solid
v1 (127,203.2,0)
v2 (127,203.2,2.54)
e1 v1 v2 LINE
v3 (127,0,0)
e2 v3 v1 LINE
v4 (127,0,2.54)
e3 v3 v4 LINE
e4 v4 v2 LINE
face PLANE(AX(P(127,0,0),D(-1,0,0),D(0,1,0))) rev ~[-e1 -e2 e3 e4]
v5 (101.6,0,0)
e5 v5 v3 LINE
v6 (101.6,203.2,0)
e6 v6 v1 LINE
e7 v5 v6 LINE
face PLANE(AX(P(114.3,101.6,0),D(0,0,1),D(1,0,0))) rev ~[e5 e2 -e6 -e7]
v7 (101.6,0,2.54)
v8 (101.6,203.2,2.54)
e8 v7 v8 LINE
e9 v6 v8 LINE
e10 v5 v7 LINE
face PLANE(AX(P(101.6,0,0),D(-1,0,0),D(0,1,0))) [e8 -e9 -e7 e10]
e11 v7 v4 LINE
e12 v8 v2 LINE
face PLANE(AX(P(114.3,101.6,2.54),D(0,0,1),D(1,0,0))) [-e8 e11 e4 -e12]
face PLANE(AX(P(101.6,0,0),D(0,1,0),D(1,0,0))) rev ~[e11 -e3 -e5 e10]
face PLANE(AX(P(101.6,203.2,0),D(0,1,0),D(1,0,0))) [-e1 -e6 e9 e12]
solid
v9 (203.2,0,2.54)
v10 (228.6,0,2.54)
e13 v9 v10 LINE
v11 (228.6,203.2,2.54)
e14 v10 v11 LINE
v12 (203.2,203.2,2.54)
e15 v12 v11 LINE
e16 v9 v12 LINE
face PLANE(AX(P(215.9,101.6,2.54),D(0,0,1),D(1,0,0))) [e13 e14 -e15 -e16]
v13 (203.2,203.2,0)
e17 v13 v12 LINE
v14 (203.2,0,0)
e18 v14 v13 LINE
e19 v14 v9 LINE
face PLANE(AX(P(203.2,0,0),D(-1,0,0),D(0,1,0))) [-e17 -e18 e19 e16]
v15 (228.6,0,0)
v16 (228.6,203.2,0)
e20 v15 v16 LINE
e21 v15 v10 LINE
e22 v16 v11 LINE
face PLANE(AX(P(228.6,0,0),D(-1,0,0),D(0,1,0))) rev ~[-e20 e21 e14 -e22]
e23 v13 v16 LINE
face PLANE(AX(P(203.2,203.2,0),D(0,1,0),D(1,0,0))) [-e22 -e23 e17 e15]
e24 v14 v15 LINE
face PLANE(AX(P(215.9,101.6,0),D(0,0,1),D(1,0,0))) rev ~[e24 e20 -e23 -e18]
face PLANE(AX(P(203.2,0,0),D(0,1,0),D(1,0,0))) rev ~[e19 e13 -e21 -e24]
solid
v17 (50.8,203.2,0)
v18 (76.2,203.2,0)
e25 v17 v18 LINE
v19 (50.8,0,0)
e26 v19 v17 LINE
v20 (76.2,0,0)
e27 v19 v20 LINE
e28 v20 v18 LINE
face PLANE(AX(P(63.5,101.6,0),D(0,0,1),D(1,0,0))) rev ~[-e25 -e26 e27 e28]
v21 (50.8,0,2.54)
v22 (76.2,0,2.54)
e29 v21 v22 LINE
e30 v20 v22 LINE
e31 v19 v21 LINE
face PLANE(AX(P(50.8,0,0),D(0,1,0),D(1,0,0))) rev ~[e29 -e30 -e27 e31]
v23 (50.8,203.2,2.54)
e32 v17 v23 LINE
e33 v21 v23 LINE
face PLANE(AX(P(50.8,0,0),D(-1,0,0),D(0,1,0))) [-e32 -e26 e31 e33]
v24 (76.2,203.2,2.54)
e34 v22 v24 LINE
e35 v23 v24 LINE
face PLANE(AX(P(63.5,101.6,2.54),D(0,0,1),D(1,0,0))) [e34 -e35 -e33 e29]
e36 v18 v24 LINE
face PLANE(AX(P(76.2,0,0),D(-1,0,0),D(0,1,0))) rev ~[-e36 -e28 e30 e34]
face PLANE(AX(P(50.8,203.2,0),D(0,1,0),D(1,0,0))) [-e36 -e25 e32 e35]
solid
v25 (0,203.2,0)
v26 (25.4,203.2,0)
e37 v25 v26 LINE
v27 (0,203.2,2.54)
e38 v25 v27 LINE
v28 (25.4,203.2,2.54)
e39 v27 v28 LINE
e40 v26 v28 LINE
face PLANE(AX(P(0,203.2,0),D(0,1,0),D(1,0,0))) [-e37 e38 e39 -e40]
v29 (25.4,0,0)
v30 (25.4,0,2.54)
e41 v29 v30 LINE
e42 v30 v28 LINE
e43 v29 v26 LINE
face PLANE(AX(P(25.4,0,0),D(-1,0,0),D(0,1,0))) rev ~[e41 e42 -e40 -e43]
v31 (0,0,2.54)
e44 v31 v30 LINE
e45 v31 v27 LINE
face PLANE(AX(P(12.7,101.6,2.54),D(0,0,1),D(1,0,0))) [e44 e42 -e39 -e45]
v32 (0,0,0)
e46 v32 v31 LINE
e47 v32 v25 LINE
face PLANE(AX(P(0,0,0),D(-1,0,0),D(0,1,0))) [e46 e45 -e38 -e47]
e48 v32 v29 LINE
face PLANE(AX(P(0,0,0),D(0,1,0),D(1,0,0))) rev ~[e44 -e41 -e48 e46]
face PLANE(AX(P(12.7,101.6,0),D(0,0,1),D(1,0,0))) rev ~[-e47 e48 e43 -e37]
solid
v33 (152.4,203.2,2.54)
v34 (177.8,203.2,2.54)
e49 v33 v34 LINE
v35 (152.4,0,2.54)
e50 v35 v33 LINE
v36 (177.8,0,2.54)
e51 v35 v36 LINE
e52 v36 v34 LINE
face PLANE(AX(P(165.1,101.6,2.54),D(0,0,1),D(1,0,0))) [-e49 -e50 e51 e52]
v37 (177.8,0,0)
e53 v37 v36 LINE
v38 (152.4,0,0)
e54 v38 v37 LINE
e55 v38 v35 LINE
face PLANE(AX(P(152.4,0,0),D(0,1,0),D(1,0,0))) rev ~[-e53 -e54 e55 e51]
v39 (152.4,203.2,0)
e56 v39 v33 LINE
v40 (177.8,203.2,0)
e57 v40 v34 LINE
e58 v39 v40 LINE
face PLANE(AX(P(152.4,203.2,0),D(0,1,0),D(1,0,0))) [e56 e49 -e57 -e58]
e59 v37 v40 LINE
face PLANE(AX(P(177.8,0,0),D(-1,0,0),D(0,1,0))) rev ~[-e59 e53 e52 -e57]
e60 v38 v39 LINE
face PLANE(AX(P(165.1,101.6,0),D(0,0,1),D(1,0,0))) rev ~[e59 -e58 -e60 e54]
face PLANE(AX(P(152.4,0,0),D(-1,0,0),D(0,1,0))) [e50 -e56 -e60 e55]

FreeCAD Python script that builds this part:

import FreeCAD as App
import Part
import Sketcher

V = App.Vector
Q = App.Units.Quantity


def add_polygon(sketch, points):
    """Adds a closed chain of lines whose ends are joined by coincident constraints."""
    first, n = sketch.GeometryCount, len(points)
    for a, b in zip(points, points[1:] + points[:1]):
        sketch.addGeometry(Part.LineSegment(App.Vector(*a, 0), App.Vector(*b, 0)), False)
    for i in range(n):
        sketch.addConstraint(Sketcher.Constraint("Coincident", first + i, 2, first + (i + 1) % n, 1))

doc = App.newDocument("Part")
params = doc.addObject("Spreadsheet::Sheet", "Params")
for row, (alias, value) in enumerate([
    ("sketch1_width", "1 in"),
    ("sketch1_height", "8 in"),
    ("pad1_length", "0.1 in"),
], start=1):
    params.set(f"A{row}", alias)
    params.set(f"B{row}", "=" + value)
    params.setAlias(f"B{row}", alias)

body = doc.addObject("PartDesign::Body", "Body")
body.AllowCompound = True

# Sketch on XY plane
sketch1 = body.newObject("Sketcher::SketchObject", "Sketch")
sketch1.AttachmentSupport = (doc.getObject("XY_Plane"), [""])
sketch1.MapMode = "FlatFace"
add_polygon(sketch1, [(0, 203), (0, 0), (25, 0), (25, 203)])  # lines 0-3
add_polygon(sketch1, [(51, 203), (51, 0), (76, 0), (76, 203)])  # lines 4-7
add_polygon(sketch1, [(102, 203), (102, 0), (127, 0), (127, 203)])  # lines 8-11
add_polygon(sketch1, [(152, 203), (152, 0), (178, 0), (178, 203)])  # lines 12-15
add_polygon(sketch1, [(203, 203), (203, 0), (229, 0), (229, 203)])  # lines 16-19
sketch1.addConstraint(Sketcher.Constraint("Vertical", 0))
sketch1.addConstraint(Sketcher.Constraint("Horizontal", 1))
sketch1.addConstraint(Sketcher.Constraint("Vertical", 2))
sketch1.addConstraint(Sketcher.Constraint("Horizontal", 3))
sketch1.addConstraint(Sketcher.Constraint("Vertical", 4))
sketch1.addConstraint(Sketcher.Constraint("Horizontal", 5))
sketch1.addConstraint(Sketcher.Constraint("Vertical", 6))
sketch1.addConstraint(Sketcher.Constraint("Horizontal", 7))
sketch1.addConstraint(Sketcher.Constraint("Vertical", 8))
sketch1.addConstraint(Sketcher.Constraint("Horizontal", 9))
sketch1.addConstraint(Sketcher.Constraint("Vertical", 10))
sketch1.addConstraint(Sketcher.Constraint("Horizontal", 11))
sketch1.addConstraint(Sketcher.Constraint("Vertical", 12))
sketch1.addConstraint(Sketcher.Constraint("Horizontal", 13))
sketch1.addConstraint(Sketcher.Constraint("Vertical", 14))
sketch1.addConstraint(Sketcher.Constraint("Horizontal", 15))
sketch1.addConstraint(Sketcher.Constraint("Vertical", 16))
sketch1.addConstraint(Sketcher.Constraint("Horizontal", 17))
sketch1.addConstraint(Sketcher.Constraint("Vertical", 18))
sketch1.addConstraint(Sketcher.Constraint("Horizontal", 19))
sketch1.addConstraint(Sketcher.Constraint("Coincident", 0, 2, -1, 1))
sketch1.addConstraint(Sketcher.Constraint("PointOnObject", 4, 2, -1))
sketch1.addConstraint(Sketcher.Constraint("PointOnObject", 8, 2, -1))
sketch1.addConstraint(Sketcher.Constraint("PointOnObject", 12, 2, -1))
sketch1.addConstraint(Sketcher.Constraint("PointOnObject", 16, 2, -1))
sketch1.addConstraint(Sketcher.Constraint("Horizontal", 3, 2, 6, 2))
sketch1.addConstraint(Sketcher.Constraint("Horizontal", 7, 2, 10, 2))
sketch1.addConstraint(Sketcher.Constraint("Horizontal", 11, 2, 14, 2))
sketch1.addConstraint(Sketcher.Constraint("Horizontal", 15, 2, 18, 2))
sketch1.addConstraint(Sketcher.Constraint("Equal", 3, 5))
sketch1.addConstraint(Sketcher.Constraint("Equal", 7, 9))
sketch1.addConstraint(Sketcher.Constraint("Equal", 11, 13))
sketch1.addConstraint(Sketcher.Constraint("Equal", 15, 17))
sketch1.addConstraint(Sketcher.Constraint("DistanceX", 1, 1, 1, 2, Q("1 in")))
sketch1.addConstraint(Sketcher.Constraint("DistanceY", 0, 2, 0, 1, Q("8 in")))
sketch1.addConstraint(Sketcher.Constraint("DistanceX", -1, 1, 4, 2, Q("2 in")))
sketch1.addConstraint(Sketcher.Constraint("DistanceX", -1, 1, 8, 2, Q("4 in")))
sketch1.addConstraint(Sketcher.Constraint("DistanceX", -1, 1, 12, 2, Q("6 in")))
sketch1.addConstraint(Sketcher.Constraint("DistanceX", -1, 1, 16, 2, Q("8 in")))
sketch1.setExpression("Constraints[53]", "Params.sketch1_width")
sketch1.setExpression("Constraints[54]", "Params.sketch1_height")
pad1 = body.newObject("PartDesign::Pad", "Pad")
pad1.Profile = sketch1
pad1.setExpression("Length", "Params.pad1_length")

doc.recompute()
